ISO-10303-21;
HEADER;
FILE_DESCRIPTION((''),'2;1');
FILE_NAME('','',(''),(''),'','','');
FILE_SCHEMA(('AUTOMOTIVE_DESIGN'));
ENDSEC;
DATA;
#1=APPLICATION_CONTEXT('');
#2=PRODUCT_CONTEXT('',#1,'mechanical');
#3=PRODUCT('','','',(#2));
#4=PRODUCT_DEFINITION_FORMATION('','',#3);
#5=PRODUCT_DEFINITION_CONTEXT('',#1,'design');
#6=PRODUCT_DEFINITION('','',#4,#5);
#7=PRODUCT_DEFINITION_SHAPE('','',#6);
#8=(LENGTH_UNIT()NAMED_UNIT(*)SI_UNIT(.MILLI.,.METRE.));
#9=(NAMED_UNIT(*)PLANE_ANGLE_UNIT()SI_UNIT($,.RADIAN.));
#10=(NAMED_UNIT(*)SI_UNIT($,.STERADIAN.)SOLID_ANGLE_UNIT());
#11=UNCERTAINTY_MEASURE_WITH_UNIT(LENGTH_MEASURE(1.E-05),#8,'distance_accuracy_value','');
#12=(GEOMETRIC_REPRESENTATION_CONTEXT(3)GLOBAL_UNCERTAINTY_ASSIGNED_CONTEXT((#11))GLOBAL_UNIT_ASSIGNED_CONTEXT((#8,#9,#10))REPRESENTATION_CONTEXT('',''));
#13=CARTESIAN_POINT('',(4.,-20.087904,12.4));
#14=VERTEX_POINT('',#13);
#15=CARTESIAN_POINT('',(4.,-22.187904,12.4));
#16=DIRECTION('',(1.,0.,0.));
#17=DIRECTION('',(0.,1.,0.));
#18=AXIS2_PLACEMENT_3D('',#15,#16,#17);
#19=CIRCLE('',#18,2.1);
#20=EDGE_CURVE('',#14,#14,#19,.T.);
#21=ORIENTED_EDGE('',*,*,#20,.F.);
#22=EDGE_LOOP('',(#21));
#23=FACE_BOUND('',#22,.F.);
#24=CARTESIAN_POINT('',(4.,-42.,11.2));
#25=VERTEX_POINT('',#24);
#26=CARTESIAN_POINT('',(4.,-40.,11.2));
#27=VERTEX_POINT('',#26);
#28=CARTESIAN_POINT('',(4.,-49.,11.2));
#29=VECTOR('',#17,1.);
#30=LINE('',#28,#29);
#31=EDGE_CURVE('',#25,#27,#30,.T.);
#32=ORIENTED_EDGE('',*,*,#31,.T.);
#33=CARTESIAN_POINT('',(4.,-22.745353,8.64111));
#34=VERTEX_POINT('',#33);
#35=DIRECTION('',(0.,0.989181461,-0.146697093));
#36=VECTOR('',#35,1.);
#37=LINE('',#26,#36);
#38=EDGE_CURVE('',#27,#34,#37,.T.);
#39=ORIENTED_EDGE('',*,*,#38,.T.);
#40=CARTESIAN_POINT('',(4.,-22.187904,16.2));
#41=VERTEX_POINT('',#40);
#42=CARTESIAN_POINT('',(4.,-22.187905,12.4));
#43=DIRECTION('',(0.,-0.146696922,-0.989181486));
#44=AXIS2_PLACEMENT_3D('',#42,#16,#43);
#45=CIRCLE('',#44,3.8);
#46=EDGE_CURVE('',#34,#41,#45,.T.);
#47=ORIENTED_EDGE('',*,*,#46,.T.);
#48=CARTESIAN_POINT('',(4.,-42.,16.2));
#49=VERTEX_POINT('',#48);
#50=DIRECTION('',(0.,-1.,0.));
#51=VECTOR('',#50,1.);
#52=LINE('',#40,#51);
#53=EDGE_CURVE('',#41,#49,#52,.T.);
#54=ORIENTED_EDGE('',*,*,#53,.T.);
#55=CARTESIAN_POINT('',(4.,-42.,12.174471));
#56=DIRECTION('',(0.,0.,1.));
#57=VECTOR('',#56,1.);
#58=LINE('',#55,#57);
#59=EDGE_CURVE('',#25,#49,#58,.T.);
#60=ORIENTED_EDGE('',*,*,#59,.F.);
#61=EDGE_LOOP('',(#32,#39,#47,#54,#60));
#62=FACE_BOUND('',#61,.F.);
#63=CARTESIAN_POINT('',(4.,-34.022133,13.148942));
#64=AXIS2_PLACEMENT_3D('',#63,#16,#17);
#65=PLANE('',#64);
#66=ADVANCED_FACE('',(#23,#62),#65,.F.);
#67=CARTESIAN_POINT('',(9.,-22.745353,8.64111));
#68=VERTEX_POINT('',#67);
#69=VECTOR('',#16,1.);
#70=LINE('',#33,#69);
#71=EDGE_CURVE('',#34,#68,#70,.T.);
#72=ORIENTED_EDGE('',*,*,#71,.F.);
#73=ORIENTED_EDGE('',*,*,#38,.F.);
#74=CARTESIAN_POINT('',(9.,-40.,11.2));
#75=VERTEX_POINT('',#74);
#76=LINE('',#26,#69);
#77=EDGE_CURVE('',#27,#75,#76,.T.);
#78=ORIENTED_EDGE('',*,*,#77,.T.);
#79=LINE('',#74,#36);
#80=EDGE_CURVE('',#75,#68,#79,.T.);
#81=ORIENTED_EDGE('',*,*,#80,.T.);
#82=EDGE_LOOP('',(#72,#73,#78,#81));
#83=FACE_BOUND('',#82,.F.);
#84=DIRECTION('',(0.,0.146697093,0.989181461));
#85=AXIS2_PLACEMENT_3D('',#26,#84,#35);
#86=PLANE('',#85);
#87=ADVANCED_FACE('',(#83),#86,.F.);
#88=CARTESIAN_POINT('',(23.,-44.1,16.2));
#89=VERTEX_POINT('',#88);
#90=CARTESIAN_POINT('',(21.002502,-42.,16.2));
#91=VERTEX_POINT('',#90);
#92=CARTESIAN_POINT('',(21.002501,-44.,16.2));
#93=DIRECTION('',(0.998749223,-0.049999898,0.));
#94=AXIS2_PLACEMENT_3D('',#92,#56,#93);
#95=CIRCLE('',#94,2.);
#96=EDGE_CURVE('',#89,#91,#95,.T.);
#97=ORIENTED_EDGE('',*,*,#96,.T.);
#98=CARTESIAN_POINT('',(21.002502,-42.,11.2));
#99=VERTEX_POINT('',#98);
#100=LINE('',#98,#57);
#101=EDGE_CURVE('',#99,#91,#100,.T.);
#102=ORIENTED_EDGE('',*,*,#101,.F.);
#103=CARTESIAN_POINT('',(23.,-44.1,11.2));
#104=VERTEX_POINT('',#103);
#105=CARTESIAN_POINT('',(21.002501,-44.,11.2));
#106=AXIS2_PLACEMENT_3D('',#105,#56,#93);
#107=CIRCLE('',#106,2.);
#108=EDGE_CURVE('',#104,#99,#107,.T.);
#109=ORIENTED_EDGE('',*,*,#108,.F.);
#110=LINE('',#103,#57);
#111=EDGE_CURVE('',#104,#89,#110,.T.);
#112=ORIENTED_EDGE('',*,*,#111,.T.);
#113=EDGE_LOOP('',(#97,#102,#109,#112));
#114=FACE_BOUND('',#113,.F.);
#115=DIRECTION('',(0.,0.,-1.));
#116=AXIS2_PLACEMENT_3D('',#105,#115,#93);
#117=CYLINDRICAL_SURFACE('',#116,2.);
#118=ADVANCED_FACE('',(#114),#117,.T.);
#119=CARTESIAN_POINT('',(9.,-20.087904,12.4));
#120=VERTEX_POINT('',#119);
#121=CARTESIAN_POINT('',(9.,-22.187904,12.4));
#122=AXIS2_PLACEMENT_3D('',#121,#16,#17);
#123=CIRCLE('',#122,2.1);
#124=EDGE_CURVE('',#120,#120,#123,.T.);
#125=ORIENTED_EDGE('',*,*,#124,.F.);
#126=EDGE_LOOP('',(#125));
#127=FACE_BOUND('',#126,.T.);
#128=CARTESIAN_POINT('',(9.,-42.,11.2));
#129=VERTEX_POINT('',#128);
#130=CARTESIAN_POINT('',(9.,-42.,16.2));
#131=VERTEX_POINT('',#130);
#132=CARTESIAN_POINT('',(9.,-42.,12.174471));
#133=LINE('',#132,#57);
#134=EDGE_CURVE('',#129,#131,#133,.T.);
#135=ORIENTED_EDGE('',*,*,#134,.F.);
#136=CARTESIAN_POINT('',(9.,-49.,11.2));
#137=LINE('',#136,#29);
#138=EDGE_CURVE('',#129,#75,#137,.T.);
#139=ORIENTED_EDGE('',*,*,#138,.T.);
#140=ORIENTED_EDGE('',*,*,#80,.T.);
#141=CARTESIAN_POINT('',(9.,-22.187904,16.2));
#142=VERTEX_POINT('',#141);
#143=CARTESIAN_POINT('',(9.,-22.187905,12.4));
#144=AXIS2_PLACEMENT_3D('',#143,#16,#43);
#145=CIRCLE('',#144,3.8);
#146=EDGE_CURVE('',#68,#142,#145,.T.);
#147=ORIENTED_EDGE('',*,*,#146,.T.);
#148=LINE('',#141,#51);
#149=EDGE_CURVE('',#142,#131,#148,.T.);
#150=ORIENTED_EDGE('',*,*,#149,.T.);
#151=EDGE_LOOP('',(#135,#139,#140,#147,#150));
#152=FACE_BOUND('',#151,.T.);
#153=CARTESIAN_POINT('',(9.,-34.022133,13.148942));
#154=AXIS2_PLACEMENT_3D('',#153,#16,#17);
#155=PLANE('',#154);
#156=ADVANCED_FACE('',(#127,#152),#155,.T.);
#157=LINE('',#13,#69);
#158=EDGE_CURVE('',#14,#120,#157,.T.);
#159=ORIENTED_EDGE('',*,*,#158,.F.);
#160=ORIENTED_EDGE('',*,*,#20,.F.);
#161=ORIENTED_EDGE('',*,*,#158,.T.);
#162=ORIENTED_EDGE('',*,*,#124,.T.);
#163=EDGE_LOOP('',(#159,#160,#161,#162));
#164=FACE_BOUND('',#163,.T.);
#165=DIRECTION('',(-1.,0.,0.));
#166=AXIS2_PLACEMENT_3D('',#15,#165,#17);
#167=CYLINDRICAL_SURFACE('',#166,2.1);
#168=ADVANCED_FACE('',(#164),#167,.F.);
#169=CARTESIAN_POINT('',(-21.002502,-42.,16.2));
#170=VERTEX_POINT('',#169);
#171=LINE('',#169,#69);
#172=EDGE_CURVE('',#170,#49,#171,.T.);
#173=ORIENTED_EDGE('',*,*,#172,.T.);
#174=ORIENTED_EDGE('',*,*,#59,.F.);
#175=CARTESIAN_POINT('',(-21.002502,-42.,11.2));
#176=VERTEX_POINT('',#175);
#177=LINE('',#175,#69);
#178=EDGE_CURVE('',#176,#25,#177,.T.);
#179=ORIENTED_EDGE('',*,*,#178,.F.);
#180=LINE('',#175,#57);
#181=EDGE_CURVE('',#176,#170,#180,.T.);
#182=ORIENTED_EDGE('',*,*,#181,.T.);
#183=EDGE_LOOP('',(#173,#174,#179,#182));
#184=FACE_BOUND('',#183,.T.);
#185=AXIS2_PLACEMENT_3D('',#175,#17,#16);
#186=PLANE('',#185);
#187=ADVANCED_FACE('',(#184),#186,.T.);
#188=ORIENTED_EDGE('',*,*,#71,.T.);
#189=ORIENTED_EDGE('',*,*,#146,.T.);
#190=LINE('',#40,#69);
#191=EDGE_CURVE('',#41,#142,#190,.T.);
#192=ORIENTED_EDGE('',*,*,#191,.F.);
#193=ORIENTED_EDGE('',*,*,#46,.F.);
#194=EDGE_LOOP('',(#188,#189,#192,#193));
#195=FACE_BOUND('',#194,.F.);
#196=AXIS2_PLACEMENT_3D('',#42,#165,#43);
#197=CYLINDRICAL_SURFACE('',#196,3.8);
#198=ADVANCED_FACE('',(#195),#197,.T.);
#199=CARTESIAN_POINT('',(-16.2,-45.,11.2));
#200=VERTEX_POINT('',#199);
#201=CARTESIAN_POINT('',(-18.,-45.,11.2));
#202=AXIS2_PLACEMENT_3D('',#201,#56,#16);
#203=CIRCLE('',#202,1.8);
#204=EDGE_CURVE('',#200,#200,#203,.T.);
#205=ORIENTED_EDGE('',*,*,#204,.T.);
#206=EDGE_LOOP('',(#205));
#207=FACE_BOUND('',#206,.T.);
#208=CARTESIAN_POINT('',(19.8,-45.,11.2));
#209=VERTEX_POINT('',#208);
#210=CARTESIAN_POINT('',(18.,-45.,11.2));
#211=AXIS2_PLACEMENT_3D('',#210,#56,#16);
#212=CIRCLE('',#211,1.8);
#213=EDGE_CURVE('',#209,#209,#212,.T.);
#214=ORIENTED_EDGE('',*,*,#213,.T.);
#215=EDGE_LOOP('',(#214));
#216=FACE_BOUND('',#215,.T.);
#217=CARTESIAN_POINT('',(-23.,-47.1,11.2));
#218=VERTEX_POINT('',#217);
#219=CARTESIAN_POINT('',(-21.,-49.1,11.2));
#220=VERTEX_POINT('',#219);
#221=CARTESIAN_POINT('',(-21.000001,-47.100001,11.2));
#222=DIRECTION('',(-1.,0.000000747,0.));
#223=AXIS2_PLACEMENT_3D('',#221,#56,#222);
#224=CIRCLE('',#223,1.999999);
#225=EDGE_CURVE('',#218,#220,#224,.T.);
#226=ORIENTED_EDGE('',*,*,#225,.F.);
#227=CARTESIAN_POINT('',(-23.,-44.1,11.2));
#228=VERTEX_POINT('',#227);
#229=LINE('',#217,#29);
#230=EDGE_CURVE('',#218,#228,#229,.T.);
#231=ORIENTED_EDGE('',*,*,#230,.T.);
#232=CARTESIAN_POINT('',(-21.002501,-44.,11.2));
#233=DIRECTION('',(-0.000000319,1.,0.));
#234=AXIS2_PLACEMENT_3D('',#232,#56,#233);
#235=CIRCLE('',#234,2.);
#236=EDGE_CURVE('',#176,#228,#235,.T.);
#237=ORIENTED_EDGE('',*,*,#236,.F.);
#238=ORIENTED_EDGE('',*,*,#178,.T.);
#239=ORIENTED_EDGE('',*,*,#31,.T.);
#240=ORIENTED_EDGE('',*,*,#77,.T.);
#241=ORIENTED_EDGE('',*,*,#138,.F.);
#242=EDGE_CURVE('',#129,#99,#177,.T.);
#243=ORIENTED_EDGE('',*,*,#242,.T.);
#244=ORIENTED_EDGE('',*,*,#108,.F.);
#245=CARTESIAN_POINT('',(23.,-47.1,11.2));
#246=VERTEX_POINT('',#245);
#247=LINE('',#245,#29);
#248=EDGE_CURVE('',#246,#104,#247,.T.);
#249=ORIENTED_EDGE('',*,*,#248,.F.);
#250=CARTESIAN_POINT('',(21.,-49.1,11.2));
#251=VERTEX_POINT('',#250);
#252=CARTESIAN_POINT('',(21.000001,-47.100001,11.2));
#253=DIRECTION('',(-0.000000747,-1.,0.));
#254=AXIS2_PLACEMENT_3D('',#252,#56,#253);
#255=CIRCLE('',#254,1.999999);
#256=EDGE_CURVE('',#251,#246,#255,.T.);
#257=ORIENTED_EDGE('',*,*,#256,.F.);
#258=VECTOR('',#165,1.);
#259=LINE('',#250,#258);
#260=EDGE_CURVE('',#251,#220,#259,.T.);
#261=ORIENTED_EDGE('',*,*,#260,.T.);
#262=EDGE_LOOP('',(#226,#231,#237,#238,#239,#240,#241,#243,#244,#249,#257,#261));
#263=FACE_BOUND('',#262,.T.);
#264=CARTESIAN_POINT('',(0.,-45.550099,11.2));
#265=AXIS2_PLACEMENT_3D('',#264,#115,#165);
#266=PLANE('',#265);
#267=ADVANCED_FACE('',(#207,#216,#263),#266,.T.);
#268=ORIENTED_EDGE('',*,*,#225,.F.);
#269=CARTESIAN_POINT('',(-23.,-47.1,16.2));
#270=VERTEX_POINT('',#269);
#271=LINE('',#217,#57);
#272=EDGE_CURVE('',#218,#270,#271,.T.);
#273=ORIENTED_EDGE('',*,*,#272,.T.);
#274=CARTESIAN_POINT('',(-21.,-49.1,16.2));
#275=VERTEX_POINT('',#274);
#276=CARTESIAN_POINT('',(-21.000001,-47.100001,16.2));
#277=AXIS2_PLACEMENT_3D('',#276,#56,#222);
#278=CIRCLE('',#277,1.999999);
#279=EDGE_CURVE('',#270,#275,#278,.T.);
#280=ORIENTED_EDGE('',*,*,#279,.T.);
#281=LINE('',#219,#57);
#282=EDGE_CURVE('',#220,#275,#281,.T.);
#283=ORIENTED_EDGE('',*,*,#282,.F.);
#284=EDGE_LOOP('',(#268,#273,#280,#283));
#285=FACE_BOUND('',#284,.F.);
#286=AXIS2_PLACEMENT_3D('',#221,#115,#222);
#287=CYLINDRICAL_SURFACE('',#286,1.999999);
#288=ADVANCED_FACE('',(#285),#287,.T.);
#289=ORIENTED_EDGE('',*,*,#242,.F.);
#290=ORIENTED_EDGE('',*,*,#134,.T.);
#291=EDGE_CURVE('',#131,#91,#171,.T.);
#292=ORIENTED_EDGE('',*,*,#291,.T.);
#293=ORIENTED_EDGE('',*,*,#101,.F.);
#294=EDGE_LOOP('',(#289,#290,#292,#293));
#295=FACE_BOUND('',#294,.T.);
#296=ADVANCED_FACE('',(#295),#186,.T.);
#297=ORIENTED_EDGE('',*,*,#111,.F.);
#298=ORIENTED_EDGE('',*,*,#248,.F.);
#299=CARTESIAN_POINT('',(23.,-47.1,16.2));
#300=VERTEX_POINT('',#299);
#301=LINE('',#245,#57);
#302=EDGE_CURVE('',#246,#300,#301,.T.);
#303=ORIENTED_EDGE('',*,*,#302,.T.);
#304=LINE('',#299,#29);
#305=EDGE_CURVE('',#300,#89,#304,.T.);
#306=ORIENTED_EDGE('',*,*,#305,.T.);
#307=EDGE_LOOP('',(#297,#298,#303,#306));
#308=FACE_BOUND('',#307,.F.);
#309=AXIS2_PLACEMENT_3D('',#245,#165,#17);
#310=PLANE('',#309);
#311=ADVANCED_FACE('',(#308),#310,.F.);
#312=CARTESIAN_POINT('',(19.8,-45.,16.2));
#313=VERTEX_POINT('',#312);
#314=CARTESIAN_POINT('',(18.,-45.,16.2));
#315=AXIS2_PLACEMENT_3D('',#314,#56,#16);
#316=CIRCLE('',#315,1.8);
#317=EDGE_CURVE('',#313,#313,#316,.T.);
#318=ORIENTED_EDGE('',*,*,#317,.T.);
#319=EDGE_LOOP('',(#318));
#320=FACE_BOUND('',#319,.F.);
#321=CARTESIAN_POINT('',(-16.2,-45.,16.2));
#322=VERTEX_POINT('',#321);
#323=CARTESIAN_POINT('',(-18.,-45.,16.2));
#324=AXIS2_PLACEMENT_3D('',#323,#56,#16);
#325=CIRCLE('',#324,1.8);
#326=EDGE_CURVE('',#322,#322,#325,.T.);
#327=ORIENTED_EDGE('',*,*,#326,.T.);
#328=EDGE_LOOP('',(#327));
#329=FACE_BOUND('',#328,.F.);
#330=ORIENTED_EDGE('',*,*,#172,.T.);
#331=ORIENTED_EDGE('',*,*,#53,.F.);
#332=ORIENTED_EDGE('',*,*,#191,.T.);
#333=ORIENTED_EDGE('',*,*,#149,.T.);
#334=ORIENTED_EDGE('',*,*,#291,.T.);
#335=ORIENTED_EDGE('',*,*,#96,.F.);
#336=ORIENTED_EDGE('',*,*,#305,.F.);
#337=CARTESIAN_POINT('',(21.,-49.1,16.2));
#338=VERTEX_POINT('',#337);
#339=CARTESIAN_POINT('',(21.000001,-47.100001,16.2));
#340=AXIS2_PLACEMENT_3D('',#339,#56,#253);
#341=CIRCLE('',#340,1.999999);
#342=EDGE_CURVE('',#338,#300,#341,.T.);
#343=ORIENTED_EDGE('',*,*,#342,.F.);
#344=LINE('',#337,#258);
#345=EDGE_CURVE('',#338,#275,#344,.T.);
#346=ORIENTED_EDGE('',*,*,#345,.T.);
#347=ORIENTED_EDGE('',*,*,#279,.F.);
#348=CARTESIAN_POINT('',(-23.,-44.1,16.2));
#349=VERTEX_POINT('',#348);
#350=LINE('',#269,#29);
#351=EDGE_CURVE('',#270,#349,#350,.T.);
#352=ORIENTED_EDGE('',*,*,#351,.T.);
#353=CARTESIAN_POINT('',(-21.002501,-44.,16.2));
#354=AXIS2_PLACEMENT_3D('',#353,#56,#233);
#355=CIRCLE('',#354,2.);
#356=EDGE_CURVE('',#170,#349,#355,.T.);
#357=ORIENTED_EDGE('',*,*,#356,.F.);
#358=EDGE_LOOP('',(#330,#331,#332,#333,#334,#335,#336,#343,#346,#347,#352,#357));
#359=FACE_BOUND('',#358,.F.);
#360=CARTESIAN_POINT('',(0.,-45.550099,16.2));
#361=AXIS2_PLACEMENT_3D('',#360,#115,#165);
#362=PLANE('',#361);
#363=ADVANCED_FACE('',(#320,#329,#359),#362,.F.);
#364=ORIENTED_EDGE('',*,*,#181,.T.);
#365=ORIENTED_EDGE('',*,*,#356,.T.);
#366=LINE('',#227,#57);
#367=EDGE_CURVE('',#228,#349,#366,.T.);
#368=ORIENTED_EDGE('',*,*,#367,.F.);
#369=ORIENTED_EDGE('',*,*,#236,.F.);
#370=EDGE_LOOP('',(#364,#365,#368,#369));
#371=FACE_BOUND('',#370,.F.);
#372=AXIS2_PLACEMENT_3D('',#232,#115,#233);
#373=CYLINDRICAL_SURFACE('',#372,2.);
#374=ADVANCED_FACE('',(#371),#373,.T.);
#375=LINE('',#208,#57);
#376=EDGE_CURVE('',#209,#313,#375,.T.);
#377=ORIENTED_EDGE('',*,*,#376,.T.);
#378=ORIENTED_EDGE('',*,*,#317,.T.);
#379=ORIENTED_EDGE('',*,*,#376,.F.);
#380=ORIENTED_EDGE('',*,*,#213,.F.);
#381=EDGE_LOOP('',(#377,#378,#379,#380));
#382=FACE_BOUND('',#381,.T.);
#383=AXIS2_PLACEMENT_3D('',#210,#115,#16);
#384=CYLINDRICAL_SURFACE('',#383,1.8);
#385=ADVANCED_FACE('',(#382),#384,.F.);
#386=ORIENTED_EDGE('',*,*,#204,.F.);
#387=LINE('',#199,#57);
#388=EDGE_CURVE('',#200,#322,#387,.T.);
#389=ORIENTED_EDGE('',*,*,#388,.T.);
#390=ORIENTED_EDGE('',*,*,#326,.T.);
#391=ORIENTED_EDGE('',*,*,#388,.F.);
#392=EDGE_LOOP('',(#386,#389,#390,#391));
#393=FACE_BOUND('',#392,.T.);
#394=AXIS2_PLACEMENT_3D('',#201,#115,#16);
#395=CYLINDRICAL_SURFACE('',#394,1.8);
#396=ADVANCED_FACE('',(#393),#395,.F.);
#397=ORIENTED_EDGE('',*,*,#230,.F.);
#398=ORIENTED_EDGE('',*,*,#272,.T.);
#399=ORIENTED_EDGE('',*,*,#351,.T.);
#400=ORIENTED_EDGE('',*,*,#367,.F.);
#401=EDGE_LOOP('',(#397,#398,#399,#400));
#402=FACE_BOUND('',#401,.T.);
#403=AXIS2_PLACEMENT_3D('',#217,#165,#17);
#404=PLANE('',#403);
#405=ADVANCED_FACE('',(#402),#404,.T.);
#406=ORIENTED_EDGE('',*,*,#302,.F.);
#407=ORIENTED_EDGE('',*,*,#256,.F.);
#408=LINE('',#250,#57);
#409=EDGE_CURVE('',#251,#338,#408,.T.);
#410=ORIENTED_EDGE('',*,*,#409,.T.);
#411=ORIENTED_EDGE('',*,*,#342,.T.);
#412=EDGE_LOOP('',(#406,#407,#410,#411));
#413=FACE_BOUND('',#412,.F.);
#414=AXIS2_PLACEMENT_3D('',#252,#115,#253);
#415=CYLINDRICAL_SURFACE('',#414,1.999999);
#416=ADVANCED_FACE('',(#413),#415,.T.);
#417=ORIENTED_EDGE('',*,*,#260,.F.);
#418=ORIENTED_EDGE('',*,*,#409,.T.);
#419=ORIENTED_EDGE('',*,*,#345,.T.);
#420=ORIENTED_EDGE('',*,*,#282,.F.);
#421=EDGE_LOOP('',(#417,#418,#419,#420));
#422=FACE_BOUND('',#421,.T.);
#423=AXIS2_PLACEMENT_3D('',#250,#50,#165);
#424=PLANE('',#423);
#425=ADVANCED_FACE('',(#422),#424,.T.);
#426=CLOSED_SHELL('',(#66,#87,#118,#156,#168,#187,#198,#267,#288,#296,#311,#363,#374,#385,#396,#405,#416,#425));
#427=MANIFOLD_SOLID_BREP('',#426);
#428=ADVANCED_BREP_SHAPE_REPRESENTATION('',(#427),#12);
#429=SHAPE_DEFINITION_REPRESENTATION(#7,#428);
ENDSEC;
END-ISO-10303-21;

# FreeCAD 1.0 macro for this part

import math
import FreeCAD as App
import Part
import Sketcher

V = App.Vector
Q = App.Units.Quantity

doc = App.newDocument("Part")
body = doc.addObject("PartDesign::Body", "Body")

# Sketch on XY plane
sketch1 = body.newObject("Sketcher::SketchObject", "Sketch")
sketch1.AttachmentSupport = (doc.getObject("XY_Plane"), [""])
sketch1.MapMode = "FlatFace"
sketch1.addGeometry(Part.LineSegment(V(21, -42, 0), V(-21, -42, 0)), False)
sketch1.addGeometry(Part.ArcOfCircle(Part.Circle(V(-21, -44, 0), V(0, 0, 1), 2), math.radians(90), math.radians(183)), False)
sketch1.addGeometry(Part.LineSegment(V(-23, -44.1, 0), V(-23, -47.1, 0)), False)
sketch1.addGeometry(Part.ArcOfCircle(Part.Circle(V(-21, -47.1, 0), V(0, 0, 1), 2), math.radians(180), math.radians(270)), False)
sketch1.addGeometry(Part.LineSegment(V(-21, -49.1, 0), V(21, -49.1, 0)), False)
sketch1.addGeometry(Part.ArcOfCircle(Part.Circle(V(21, -47.1, 0), V(0, 0, 1), 2), math.radians(-90), math.radians(0)), False)
sketch1.addGeometry(Part.LineSegment(V(23, -47.1, 0), V(23, -44.1, 0)), False)
sketch1.addGeometry(Part.ArcOfCircle(Part.Circle(V(21, -44, 0), V(0, 0, 1), 2), math.radians(-3), math.radians(90)), False)
sketch1.addGeometry(Part.Circle(V(18, -45, 0), V(0, 0, 1), 1.8), False)
sketch1.addGeometry(Part.Circle(V(-18, -45, 0), V(0, 0, 1), 1.8), False)
sketch1.addConstraint(Sketcher.Constraint("Tangent", 0, 2, 1, 1))
sketch1.addConstraint(Sketcher.Constraint("Coincident", 1, 2, 2, 1))
sketch1.addConstraint(Sketcher.Constraint("Tangent", 2, 2, 3, 1))
sketch1.addConstraint(Sketcher.Constraint("Tangent", 3, 2, 4, 1))
sketch1.addConstraint(Sketcher.Constraint("Tangent", 4, 2, 5, 1))
sketch1.addConstraint(Sketcher.Constraint("Tangent", 5, 2, 6, 1))
sketch1.addConstraint(Sketcher.Constraint("Coincident", 6, 2, 7, 1))
sketch1.addConstraint(Sketcher.Constraint("Tangent", 7, 2, 0, 1))
sketch1.addConstraint(Sketcher.Constraint("Horizontal", 0))
sketch1.addConstraint(Sketcher.Constraint("Vertical", 2))
sketch1.addConstraint(Sketcher.Constraint("Horizontal", 4))
sketch1.addConstraint(Sketcher.Constraint("Vertical", 6))
sketch1.addConstraint(Sketcher.Constraint("Equal", 1, 3))
sketch1.addConstraint(Sketcher.Constraint("Equal", 3, 5))
sketch1.addConstraint(Sketcher.Constraint("Equal", 5, 7))
sketch1.addConstraint(Sketcher.Constraint("Equal", 8, 9))
sketch1.addConstraint(Sketcher.Constraint("Symmetric", 8, 3, 9, 3, -2))
sketch1.addConstraint(Sketcher.Constraint("Symmetric", 1, 2, 6, 2, -2))
sketch1.addConstraint(Sketcher.Constraint("Radius", 1, Q("2 mm")))
sketch1.addConstraint(Sketcher.Constraint("Diameter", 8, Q("3.6 mm")))
sketch1.addConstraint(Sketcher.Constraint("DistanceX", 4, 1, 4, 2, Q("42 mm")))
sketch1.addConstraint(Sketcher.Constraint("DistanceY", 2, 2, 2, 1, Q("3 mm")))
sketch1.addConstraint(Sketcher.Constraint("DistanceY", 1, 3, -1, 1, Q("44 mm")))
sketch1.addConstraint(Sketcher.Constraint("DistanceX", -1, 1, 8, 3, Q("18 mm")))
sketch1.addConstraint(Sketcher.Constraint("DistanceY", 8, 3, -1, 1, Q("45 mm")))
sketch1.addConstraint(Sketcher.Constraint("DistanceY", 3, 3, -1, 1, Q("47.100001 mm")))
pad1 = body.newObject("PartDesign::Pad", "Pad")
pad1.Profile = sketch1
pad1.Length = 5
body2 = doc.addObject("PartDesign::Body", "Body001")
doc.recompute()

body.Placement = App.Placement(V(0, 0, 11.2), App.Rotation(V(0, 0, 1), 0))
boolean = body2.newObject("PartDesign::Boolean", "Boolean")
boolean.Type = "Fuse"
boolean.addObjects([body])
body3 = doc.addObject("PartDesign::Body", "Body002")

# Sketch on YZ plane
sketch2 = body3.newObject("Sketcher::SketchObject", "Sketch001")
sketch2.AttachmentSupport = (doc.getObject("YZ_Plane002"), [""])
sketch2.MapMode = "FlatFace"
sketch2.addGeometry(Part.LineSegment(V(-49, 11.2, 0), V(-40, 11.2, 0)), False)
sketch2.addGeometry(Part.LineSegment(V(-40, 11.2, 0), V(-22.7, 8.6, 0)), False)
sketch2.addGeometry(Part.ArcOfCircle(Part.Circle(V(-22.2, 12.4, 0), V(0, 0, 1), 3.8), math.radians(-98), math.radians(90)), False)
sketch2.addGeometry(Part.LineSegment(V(-22.2, 16.2, 0), V(-49, 16.2, 0)), False)
sketch2.addGeometry(Part.LineSegment(V(-49, 16.2, 0), V(-49, 11.2, 0)), False)
sketch2.addGeometry(Part.Circle(V(-22.2, 12.4, 0), V(0, 0, 1), 2.1), False)
sketch2.addConstraint(Sketcher.Constraint("Coincident", 0, 2, 1, 1))
sketch2.addConstraint(Sketcher.Constraint("Tangent", 1, 2, 2, 1))
sketch2.addConstraint(Sketcher.Constraint("Tangent", 2, 2, 3, 1))
sketch2.addConstraint(Sketcher.Constraint("Coincident", 3, 2, 4, 1))
sketch2.addConstraint(Sketcher.Constraint("Coincident", 4, 2, 0, 1))
sketch2.addConstraint(Sketcher.Constraint("Horizontal", 0))
sketch2.addConstraint(Sketcher.Constraint("Horizontal", 3))
sketch2.addConstraint(Sketcher.Constraint("Vertical", 4))
sketch2.addConstraint(Sketcher.Constraint("Coincident", 5, 3, 2, 3))
sketch2.addConstraint(Sketcher.Constraint("Diameter", 5, Q("4.2 mm")))
sketch2.addConstraint(Sketcher.Constraint("Radius", 2, Q("3.8 mm")))
sketch2.addConstraint(Sketcher.Constraint("DistanceX", 0, 1, 0, 2, Q("9 mm")))
sketch2.addConstraint(Sketcher.Constraint("DistanceY", 4, 2, 4, 1, Q("5 mm")))
sketch2.addConstraint(Sketcher.Constraint("DistanceX", 0, 2, -1, 1, Q("40 mm")))
sketch2.addConstraint(Sketcher.Constraint("DistanceY", -1, 1, 2, 3, Q("12.4 mm")))
sketch2.addConstraint(Sketcher.Constraint("Distance", 1, Q("17.443359 mm")))
pad2 = body3.newObject("PartDesign::Pad", "Pad001")
pad2.Profile = sketch2
pad2.Length = 5
body4 = doc.addObject("PartDesign::Body", "Body003")
doc.recompute()

body3.Placement = App.Placement(V(4, 0, 0), App.Rotation(V(0, 0, 1), 0))
boolean2 = body4.newObject("PartDesign::Boolean", "Boolean001")
boolean2.Type = "Fuse"
boolean2.addObjects([body3])
doc.recompute()

boolean3 = body4.newObject("PartDesign::Boolean", "Boolean002")
boolean3.Type = "Fuse"
boolean3.addObjects([body2])

doc.recompute()
